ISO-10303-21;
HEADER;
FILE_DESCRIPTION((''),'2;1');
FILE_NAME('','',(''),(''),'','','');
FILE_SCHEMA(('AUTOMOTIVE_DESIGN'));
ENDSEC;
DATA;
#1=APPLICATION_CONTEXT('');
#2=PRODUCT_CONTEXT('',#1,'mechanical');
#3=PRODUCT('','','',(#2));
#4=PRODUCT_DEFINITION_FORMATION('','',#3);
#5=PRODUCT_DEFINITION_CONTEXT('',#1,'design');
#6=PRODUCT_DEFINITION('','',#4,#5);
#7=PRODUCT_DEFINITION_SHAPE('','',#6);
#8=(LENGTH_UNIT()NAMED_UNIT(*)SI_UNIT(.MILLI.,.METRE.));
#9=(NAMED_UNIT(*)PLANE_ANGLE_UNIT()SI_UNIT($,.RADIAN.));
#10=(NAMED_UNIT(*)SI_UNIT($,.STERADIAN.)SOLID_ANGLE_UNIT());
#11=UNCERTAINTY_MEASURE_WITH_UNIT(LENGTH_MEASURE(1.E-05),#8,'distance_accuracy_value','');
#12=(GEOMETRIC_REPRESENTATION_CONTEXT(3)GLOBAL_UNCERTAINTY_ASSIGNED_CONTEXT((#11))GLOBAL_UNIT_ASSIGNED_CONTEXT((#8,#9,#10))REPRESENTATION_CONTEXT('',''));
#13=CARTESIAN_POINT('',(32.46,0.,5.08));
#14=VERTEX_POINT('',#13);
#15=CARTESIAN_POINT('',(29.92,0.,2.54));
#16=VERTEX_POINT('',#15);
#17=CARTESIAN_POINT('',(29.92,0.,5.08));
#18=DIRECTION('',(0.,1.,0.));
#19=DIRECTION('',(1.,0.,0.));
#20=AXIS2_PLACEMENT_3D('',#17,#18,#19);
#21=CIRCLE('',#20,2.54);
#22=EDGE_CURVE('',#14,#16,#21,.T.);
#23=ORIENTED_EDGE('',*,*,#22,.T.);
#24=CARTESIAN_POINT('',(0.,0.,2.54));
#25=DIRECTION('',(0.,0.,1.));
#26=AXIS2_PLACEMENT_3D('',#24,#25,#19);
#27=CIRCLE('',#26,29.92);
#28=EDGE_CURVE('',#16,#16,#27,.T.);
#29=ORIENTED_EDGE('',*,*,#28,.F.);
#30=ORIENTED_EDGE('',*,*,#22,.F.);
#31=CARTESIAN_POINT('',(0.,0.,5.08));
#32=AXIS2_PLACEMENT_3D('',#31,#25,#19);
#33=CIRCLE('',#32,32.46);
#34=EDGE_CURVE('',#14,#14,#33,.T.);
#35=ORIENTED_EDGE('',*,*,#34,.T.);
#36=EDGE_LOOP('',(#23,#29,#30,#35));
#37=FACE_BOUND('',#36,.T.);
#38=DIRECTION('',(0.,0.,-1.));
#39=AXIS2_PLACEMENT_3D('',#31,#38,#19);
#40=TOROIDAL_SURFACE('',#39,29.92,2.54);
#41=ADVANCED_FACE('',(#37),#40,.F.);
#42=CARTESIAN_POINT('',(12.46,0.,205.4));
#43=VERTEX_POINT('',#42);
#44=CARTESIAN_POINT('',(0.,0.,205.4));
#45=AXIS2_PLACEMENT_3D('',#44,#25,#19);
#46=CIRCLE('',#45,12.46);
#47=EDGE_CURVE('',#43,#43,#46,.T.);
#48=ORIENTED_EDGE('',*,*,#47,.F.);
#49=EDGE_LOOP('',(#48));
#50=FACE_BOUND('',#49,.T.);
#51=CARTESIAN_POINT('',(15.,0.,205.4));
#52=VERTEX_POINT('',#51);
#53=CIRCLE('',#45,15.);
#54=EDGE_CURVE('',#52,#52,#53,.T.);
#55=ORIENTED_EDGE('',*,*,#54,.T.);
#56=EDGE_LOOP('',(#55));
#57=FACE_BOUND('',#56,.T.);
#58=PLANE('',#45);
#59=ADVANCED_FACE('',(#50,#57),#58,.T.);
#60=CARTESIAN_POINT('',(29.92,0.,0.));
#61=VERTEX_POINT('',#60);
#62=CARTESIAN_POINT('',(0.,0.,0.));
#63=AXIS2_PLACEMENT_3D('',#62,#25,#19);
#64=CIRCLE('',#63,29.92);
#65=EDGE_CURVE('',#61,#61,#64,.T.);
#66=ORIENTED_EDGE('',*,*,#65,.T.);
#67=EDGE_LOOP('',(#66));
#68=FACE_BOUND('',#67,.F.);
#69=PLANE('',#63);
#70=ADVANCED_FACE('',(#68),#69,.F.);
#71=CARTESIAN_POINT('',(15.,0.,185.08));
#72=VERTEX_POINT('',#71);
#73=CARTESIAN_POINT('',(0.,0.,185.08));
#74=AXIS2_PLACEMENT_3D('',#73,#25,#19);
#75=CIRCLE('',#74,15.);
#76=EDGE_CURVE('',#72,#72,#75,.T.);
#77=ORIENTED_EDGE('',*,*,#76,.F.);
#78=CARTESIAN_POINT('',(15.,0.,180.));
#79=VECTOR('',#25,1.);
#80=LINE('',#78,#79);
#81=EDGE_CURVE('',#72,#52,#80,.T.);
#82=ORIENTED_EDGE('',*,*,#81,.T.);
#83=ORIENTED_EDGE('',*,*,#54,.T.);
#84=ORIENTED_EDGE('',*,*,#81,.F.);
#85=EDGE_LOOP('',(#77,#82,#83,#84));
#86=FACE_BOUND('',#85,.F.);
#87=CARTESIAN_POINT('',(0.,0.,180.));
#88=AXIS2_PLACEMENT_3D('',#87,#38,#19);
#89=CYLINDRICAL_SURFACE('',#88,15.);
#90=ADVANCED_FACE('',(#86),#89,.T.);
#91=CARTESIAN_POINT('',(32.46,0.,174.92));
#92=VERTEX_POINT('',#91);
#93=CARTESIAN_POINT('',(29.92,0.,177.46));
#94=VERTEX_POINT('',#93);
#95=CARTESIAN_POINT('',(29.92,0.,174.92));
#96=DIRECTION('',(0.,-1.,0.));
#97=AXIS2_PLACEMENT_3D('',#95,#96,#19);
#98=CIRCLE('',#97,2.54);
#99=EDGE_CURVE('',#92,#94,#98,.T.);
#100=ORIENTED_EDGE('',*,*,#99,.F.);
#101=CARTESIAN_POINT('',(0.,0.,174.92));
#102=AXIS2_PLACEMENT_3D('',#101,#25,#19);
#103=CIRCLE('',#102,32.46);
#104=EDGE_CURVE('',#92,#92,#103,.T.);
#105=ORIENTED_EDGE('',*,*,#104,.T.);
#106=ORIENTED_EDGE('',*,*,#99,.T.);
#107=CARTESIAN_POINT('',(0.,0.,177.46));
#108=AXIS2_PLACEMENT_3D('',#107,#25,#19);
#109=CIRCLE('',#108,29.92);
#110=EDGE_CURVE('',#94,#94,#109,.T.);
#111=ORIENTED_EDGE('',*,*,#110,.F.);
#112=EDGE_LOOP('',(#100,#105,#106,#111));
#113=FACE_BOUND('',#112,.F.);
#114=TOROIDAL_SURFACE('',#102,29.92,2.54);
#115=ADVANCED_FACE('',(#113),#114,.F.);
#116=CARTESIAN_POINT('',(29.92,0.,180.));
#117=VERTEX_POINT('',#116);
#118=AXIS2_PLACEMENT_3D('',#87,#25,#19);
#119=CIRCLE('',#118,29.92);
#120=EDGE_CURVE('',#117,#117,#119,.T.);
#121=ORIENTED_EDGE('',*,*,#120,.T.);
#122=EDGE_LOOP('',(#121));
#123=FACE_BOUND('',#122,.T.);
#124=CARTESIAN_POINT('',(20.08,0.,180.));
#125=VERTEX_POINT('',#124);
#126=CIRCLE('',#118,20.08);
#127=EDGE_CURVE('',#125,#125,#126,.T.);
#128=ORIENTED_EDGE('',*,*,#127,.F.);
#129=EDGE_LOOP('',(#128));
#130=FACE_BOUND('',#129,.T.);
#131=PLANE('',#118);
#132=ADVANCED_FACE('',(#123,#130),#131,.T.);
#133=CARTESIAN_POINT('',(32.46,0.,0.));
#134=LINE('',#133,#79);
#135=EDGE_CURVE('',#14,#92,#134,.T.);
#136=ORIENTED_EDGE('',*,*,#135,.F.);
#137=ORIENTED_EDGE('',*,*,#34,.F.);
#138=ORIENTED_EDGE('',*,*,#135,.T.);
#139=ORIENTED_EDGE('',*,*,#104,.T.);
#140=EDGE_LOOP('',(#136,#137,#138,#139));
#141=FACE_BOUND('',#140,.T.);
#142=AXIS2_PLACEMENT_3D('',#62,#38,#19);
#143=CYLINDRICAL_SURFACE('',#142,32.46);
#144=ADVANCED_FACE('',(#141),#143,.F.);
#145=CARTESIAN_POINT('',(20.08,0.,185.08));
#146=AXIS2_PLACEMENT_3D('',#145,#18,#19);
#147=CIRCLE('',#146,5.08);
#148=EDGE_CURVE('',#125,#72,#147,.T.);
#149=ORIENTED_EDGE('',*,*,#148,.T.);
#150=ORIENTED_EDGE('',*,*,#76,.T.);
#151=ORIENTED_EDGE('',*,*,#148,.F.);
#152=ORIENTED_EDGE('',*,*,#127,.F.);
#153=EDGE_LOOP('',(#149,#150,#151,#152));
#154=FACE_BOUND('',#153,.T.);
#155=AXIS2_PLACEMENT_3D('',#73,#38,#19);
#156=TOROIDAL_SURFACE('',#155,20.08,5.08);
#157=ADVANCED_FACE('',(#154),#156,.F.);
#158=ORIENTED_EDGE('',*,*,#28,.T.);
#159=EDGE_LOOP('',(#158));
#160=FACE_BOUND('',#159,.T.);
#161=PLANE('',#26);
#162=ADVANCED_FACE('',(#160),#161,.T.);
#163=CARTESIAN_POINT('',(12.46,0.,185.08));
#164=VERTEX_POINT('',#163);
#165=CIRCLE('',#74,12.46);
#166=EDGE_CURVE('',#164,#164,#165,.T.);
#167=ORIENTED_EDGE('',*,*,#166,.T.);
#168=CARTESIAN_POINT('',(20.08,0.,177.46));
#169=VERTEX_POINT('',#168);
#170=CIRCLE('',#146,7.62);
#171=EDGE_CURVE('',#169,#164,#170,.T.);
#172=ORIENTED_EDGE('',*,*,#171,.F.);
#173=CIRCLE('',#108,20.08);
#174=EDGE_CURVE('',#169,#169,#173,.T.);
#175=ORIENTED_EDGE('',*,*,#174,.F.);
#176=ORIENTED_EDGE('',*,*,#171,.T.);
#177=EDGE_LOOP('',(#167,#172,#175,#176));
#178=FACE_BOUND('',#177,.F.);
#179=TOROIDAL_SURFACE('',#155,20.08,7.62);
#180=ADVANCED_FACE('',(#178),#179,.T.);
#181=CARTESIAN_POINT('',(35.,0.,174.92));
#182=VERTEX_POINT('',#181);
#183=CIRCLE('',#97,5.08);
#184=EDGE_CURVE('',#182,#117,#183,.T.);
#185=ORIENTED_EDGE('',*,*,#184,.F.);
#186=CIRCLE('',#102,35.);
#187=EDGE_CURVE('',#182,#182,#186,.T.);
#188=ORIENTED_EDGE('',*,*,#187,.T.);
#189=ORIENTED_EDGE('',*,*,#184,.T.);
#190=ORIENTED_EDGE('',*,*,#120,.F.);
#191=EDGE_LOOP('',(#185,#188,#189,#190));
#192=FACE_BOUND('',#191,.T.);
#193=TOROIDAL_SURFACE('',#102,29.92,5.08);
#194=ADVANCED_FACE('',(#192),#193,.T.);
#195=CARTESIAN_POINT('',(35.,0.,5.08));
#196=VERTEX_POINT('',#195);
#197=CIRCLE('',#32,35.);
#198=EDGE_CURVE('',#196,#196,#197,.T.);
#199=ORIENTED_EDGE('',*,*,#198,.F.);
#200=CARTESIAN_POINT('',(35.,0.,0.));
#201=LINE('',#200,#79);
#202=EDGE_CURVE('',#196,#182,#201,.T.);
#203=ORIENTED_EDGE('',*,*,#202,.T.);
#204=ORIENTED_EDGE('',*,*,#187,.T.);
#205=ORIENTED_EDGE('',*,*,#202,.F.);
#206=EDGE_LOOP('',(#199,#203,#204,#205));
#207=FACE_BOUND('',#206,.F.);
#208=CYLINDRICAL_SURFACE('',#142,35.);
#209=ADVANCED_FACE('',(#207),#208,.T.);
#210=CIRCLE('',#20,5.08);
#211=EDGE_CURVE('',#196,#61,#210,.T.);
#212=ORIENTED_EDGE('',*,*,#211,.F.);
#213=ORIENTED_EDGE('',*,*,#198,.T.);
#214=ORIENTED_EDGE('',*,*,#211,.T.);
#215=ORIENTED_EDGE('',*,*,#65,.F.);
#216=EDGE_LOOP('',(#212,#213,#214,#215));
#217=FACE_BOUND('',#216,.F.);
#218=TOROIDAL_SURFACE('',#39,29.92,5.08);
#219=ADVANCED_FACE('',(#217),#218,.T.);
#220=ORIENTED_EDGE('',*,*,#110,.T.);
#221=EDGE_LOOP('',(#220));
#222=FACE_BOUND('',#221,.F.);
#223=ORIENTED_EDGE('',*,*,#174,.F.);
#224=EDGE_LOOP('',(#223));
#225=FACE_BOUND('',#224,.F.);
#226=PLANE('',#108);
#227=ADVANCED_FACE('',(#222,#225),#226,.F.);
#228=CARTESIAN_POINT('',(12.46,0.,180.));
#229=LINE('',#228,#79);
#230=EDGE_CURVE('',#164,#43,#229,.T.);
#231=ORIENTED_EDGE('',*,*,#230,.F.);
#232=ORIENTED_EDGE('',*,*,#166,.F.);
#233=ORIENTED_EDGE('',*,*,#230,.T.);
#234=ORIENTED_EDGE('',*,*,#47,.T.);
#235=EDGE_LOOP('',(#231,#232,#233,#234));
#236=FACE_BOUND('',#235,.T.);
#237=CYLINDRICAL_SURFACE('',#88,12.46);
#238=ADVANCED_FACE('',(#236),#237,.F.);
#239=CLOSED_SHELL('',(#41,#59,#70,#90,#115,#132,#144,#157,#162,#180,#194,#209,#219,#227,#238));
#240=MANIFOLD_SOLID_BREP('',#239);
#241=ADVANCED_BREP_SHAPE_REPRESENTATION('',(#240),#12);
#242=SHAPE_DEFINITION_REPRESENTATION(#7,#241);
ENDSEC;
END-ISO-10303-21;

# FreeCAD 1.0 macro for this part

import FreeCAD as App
import Part
import Sketcher

V = App.Vector
Q = App.Units.Quantity


def edges_at(feature, points):
    """Names of the edges that pass closest to the given points."""
    edges = feature.Shape.Edges
    near = lambda p: min(range(len(edges)), key=lambda i: edges[i].distToShape(Part.Vertex(*p))[0])
    return sorted({f"Edge{near(p) + 1}" for p in points})


def faces_at(feature, points):
    """Names of the faces that lie closest to the given points."""
    faces = feature.Shape.Faces
    near = lambda p: min(range(len(faces)), key=lambda i: faces[i].distToShape(Part.Vertex(*p))[0])
    return sorted({f"Face{near(p) + 1}" for p in points})

doc = App.newDocument("Part")
body = doc.addObject("PartDesign::Body", "Body")

sketch1 = body.newObject("Sketcher::SketchObject", "Sketch")
sketch1.AttachmentSupport = (doc.getObject("XY_Plane"), [""])
sketch1.MapMode = "FlatFace"
sketch1.addGeometry(Part.Circle(V(0, 0, 0), V(0, 0, 1), 35), False)
sketch1.addConstraint([
    Sketcher.Constraint("Coincident", 0, 3, -1, 1),
    Sketcher.Constraint("Diameter", 0, 70.0),
])
pad1 = body.newObject("PartDesign::Pad", "Pad")
pad1.Profile = sketch1
pad1.Length = 180

sketch2 = body.newObject("Sketcher::SketchObject", "Sketch001")
sketch2.AttachmentSupport = (doc.getObject("XY_Plane"), [""])
sketch2.MapMode = "FlatFace"
sketch2.AttachmentOffset = App.Placement(V(0, 0, 180), App.Rotation())
sketch2.addGeometry(Part.Circle(V(0, 0, 0), V(0, 0, 1), 15), False)
sketch2.addConstraint([
    Sketcher.Constraint("Coincident", 0, 3, -1, 1),
    Sketcher.Constraint("Diameter", 0, 30.0),
])
pad2 = body.newObject("PartDesign::Pad", "Pad001")
pad2.Profile = sketch2
pad2.Length = Q("1 in")
doc.recompute()

fillet = body.newObject("PartDesign::Fillet", "Fillet")
fillet.Base = (pad2, edges_at(pad2, [(-35, 0, 180)]))
fillet.Radius = Q("0.2 in")
doc.recompute()

fillet2 = body.newObject("PartDesign::Fillet", "Fillet001")
fillet2.Base = (fillet, edges_at(fillet, [(-35, 0, 0), (-15, 0, 180)]))
fillet2.Radius = Q("0.2 in")

sketch3 = body.newObject("Sketcher::SketchObject", "Sketch002")
sketch3.AttachmentSupport = (doc.getObject("XY_Plane"), [""])
sketch3.MapMode = "FlatFace"
sketch3.addGeometry([
    Part.Circle(V(0, 0, 0), V(0, 0, 1), 30),
    Part.Circle(V(0, 0, 0), V(0, 0, 1), 15),
], False)
sketch3.addConstraint([
    Sketcher.Constraint("Coincident", 0, 3, -1, 1),
    Sketcher.Constraint("Coincident", 1, 3, -1, 1),
    Sketcher.Constraint("Diameter", 0, 59.84),
    Sketcher.Constraint("Diameter", 1, 29.148662),
])
pad3 = body.newObject("PartDesign::Pad", "Pad002")
pad3.Profile = sketch3
pad3.Length = Q("0.27 in")
doc.recompute()

thickness = body.newObject("PartDesign::Thickness", "Thickness")
thickness.Base = (pad3, faces_at(pad3, [(0, 0, 205.4)]))
thickness.Value = Q("0.1 in")
thickness.Reversed = True
thickness.Join = "Arc"

doc.recompute()
